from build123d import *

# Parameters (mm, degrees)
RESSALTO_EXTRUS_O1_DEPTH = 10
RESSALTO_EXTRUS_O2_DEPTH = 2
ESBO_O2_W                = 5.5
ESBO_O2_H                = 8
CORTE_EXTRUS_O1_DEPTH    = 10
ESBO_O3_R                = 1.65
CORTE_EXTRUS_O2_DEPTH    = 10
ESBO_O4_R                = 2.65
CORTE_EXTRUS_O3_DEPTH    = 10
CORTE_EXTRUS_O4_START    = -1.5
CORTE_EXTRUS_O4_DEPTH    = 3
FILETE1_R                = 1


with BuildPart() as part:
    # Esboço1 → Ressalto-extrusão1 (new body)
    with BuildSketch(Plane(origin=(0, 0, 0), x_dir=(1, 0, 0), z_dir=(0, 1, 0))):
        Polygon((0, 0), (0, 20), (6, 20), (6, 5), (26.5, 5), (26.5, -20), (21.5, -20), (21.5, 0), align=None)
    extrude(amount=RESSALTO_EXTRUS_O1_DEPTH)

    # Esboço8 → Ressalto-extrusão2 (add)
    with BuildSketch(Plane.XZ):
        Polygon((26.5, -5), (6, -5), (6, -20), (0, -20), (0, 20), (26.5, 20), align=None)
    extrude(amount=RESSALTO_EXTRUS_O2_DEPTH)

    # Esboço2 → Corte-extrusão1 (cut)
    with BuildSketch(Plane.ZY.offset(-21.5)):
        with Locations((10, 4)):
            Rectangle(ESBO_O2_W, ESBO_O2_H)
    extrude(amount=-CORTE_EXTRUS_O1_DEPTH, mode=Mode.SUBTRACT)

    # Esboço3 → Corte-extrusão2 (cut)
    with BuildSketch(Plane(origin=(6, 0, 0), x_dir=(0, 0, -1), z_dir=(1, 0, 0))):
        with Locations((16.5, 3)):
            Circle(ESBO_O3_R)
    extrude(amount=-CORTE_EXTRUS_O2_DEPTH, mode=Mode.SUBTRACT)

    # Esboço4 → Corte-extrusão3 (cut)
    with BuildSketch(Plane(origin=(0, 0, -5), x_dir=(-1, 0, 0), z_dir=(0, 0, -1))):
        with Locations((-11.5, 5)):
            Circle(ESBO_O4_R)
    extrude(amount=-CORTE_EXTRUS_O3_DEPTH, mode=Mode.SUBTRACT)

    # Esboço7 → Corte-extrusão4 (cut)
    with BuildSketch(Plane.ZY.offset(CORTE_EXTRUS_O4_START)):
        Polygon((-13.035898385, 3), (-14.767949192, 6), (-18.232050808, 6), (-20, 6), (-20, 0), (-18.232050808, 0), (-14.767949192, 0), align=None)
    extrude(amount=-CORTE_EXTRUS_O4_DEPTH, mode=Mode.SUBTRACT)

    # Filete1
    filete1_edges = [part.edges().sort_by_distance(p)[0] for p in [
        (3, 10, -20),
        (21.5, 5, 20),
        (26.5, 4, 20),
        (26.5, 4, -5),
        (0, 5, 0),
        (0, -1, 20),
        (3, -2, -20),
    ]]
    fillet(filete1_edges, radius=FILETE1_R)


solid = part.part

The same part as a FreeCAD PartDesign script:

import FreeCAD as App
import Part
import Sketcher

V = App.Vector
Q = App.Units.Quantity


def edges_at(feature, points):
    """Names of the edges that pass closest to the given points."""
    edges = feature.Shape.Edges
    near = lambda p: min(range(len(edges)), key=lambda i: edges[i].distToShape(Part.Vertex(*p))[0])
    return sorted({f"Edge{near(p) + 1}" for p in points})


def add_polygon(sketch, points):
    """Adds a closed chain of lines whose ends are joined by coincident constraints."""
    first, n = sketch.GeometryCount, len(points)
    for a, b in zip(points, points[1:] + points[:1]):
        sketch.addGeometry(Part.LineSegment(App.Vector(*a, 0), App.Vector(*b, 0)), False)
    for i in range(n):
        sketch.addConstraint(Sketcher.Constraint("Coincident", first + i, 2, first + (i + 1) % n, 1))

doc = App.newDocument("Part")
body = doc.addObject("PartDesign::Body", "Body")

sketch1 = body.newObject("Sketcher::SketchObject", "Sketch")
sketch1.AttachmentSupport = (doc.getObject("XZ_Plane"), [""])
sketch1.MapMode = "FlatFace"
add_polygon(sketch1, [(0, -20), (0, 0), (22, 0), (22, 20), (26, 20), (26, -5), (6, -5), (6, -20)])
sketch1.addConstraint([
    Sketcher.Constraint("Vertical", 0),
    Sketcher.Constraint("Horizontal", 1),
    Sketcher.Constraint("Vertical", 2),
    Sketcher.Constraint("Horizontal", 3),
    Sketcher.Constraint("Vertical", 4),
    Sketcher.Constraint("Horizontal", 5),
    Sketcher.Constraint("Vertical", 6),
    Sketcher.Constraint("Horizontal", 7),
    Sketcher.Constraint("Coincident", 0, 2, -1, 1),
    Sketcher.Constraint("Equal", 0, 2),
    Sketcher.Constraint("DistanceX", 3, 1, 3, 2, 5.0),
    Sketcher.Constraint("DistanceX", 7, 2, 7, 1, 6.0),
    Sketcher.Constraint("DistanceY", 0, 1, 0, 2, 20.0),
    Sketcher.Constraint("DistanceY", 4, 2, 4, 1, 25.0),
    Sketcher.Constraint("DistanceX", 1, 1, 1, 2, 21.5),
])
pad1 = body.newObject("PartDesign::Pad", "Pad")
pad1.Profile = sketch1
pad1.Length = 10
pad1.Reversed = True

sketch2 = body.newObject("Sketcher::SketchObject", "Sketch001")
sketch2.AttachmentSupport = (doc.getObject("XZ_Plane"), [""])
sketch2.MapMode = "FlatFace"
add_polygon(sketch2, [(6, -5), (26, -5), (26, 20), (0, 20), (0, -20), (6, -20)])
sketch2.addConstraint([
    Sketcher.Constraint("Horizontal", 0),
    Sketcher.Constraint("Vertical", 1),
    Sketcher.Constraint("Horizontal", 2),
    Sketcher.Constraint("Vertical", 3),
    Sketcher.Constraint("Horizontal", 4),
    Sketcher.Constraint("Vertical", 5),
    Sketcher.Constraint("Symmetric", 2, 2, 3, 2, -1, 1),
    Sketcher.Constraint("DistanceX", 4, 1, 4, 2, 6.0),
    Sketcher.Constraint("DistanceY", 1, 1, 1, 2, 25.0),
    Sketcher.Constraint("DistanceY", 3, 2, 3, 1, 40.0),
    Sketcher.Constraint("DistanceX", 0, 1, 0, 2, 20.5),
])
pad2 = body.newObject("PartDesign::Pad", "Pad001")
pad2.Profile = sketch2
pad2.Length = 2

sketch3 = body.newObject("Sketcher::SketchObject", "Sketch002")
sketch3.AttachmentSupport = (doc.getObject("YZ_Plane"), [""])
sketch3.MapMode = "FlatFace"
sketch3.AttachmentOffset = App.Placement(V(0, 0, 21.5), App.Rotation())
add_polygon(sketch3, [(8, 7), (0, 7), (0, 13), (8, 13)])
sketch3.addConstraint([
    Sketcher.Constraint("Horizontal", 0),
    Sketcher.Constraint("Vertical", 1),
    Sketcher.Constraint("Horizontal", 2),
    Sketcher.Constraint("Vertical", 3),
    Sketcher.Constraint("PointOnObject", 0, 2, -2),
    Sketcher.Constraint("DistanceX", 0, 2, 0, 1, 8.0),
    Sketcher.Constraint("DistanceY", 1, 1, 1, 2, 5.5),
    Sketcher.Constraint("DistanceY", -1, 1, 0, 2, 7.25),
])
pocket1 = body.newObject("PartDesign::Pocket", "Pocket")
pocket1.Profile = sketch3
pocket1.Length = 10
pocket1.Reversed = True

sketch4 = body.newObject("Sketcher::SketchObject", "Sketch003")
sketch4.AttachmentSupport = (doc.getObject("YZ_Plane"), [""])
sketch4.MapMode = "FlatFace"
sketch4.AttachmentOffset = App.Placement(V(0, 0, 6), App.Rotation())
sketch4.addGeometry(Part.Circle(V(3, -16.5, 0), V(0, 0, 1), 1.6), False)
sketch4.addConstraint([
    Sketcher.Constraint("Diameter", 0, 3.3),
    Sketcher.Constraint("DistanceX", -1, 1, 0, 3, 3.0),
    Sketcher.Constraint("DistanceY", 0, 3, -1, 1, 16.5),
])
pocket2 = body.newObject("PartDesign::Pocket", "Pocket001")
pocket2.Profile = sketch4
pocket2.Length = 10

sketch5 = body.newObject("Sketcher::SketchObject", "Sketch004")
sketch5.AttachmentSupport = (doc.getObject("XY_Plane"), [""])
sketch5.MapMode = "FlatFace"
sketch5.AttachmentOffset = App.Placement(V(0, 0, -5), App.Rotation())
sketch5.addGeometry(Part.Circle(V(11.5, 5, 0), V(0, 0, 1), 2.6), False)
sketch5.addConstraint([
    Sketcher.Constraint("Diameter", 0, 5.3),
    Sketcher.Constraint("DistanceY", -1, 1, 0, 3, 5.0),
    Sketcher.Constraint("DistanceX", -1, 1, 0, 3, 11.5),
])
pocket3 = body.newObject("PartDesign::Pocket", "Pocket002")
pocket3.Profile = sketch5
pocket3.Length = 10
pocket3.Reversed = True

sketch6 = body.newObject("Sketcher::SketchObject", "Sketch005")
sketch6.AttachmentSupport = (doc.getObject("YZ_Plane"), [""])
sketch6.MapMode = "FlatFace"
sketch6.AttachmentOffset = App.Placement(V(0, 0, 1.5), App.Rotation())
add_polygon(sketch6, [(3, -13), (6, -14.8), (6, -20), (0, -20), (0, -14.8)])
sketch6.addConstraint([
    Sketcher.Constraint("Vertical", 1),
    Sketcher.Constraint("Horizontal", 2),
    Sketcher.Constraint("Vertical", 3),
    Sketcher.Constraint("PointOnObject", 2, 2, -2),
    Sketcher.Constraint("Horizontal", 0, 2, 3, 2),
    Sketcher.Constraint("Equal", 0, 4),
    Sketcher.Constraint("DistanceX", 2, 2, 2, 1, 6.0),
    Sketcher.Constraint("Angle", 0, Q("-30 deg")),
    Sketcher.Constraint("DistanceY", 1, 2, -1, 1, 20.0),
    Sketcher.Constraint("DistanceY", 1, 2, 1, 1, 5.232051),
])
pocket4 = body.newObject("PartDesign::Pocket", "Pocket003")
pocket4.Profile = sketch6
pocket4.Length = 3
pocket4.Reversed = True
doc.recompute()

fillet = body.newObject("PartDesign::Fillet", "Fillet")
fillet.Base = (pocket4, edges_at(pocket4, [
    (3, 10, -20),
    (21.5, 5, 20),
    (26.5, 4, 20),
    (26.5, 4, -5),
    (0, 5, 0),
    (0, -1, 20),
    (3, -2, -20),
]))
fillet.Radius = 1

doc.recompute()
